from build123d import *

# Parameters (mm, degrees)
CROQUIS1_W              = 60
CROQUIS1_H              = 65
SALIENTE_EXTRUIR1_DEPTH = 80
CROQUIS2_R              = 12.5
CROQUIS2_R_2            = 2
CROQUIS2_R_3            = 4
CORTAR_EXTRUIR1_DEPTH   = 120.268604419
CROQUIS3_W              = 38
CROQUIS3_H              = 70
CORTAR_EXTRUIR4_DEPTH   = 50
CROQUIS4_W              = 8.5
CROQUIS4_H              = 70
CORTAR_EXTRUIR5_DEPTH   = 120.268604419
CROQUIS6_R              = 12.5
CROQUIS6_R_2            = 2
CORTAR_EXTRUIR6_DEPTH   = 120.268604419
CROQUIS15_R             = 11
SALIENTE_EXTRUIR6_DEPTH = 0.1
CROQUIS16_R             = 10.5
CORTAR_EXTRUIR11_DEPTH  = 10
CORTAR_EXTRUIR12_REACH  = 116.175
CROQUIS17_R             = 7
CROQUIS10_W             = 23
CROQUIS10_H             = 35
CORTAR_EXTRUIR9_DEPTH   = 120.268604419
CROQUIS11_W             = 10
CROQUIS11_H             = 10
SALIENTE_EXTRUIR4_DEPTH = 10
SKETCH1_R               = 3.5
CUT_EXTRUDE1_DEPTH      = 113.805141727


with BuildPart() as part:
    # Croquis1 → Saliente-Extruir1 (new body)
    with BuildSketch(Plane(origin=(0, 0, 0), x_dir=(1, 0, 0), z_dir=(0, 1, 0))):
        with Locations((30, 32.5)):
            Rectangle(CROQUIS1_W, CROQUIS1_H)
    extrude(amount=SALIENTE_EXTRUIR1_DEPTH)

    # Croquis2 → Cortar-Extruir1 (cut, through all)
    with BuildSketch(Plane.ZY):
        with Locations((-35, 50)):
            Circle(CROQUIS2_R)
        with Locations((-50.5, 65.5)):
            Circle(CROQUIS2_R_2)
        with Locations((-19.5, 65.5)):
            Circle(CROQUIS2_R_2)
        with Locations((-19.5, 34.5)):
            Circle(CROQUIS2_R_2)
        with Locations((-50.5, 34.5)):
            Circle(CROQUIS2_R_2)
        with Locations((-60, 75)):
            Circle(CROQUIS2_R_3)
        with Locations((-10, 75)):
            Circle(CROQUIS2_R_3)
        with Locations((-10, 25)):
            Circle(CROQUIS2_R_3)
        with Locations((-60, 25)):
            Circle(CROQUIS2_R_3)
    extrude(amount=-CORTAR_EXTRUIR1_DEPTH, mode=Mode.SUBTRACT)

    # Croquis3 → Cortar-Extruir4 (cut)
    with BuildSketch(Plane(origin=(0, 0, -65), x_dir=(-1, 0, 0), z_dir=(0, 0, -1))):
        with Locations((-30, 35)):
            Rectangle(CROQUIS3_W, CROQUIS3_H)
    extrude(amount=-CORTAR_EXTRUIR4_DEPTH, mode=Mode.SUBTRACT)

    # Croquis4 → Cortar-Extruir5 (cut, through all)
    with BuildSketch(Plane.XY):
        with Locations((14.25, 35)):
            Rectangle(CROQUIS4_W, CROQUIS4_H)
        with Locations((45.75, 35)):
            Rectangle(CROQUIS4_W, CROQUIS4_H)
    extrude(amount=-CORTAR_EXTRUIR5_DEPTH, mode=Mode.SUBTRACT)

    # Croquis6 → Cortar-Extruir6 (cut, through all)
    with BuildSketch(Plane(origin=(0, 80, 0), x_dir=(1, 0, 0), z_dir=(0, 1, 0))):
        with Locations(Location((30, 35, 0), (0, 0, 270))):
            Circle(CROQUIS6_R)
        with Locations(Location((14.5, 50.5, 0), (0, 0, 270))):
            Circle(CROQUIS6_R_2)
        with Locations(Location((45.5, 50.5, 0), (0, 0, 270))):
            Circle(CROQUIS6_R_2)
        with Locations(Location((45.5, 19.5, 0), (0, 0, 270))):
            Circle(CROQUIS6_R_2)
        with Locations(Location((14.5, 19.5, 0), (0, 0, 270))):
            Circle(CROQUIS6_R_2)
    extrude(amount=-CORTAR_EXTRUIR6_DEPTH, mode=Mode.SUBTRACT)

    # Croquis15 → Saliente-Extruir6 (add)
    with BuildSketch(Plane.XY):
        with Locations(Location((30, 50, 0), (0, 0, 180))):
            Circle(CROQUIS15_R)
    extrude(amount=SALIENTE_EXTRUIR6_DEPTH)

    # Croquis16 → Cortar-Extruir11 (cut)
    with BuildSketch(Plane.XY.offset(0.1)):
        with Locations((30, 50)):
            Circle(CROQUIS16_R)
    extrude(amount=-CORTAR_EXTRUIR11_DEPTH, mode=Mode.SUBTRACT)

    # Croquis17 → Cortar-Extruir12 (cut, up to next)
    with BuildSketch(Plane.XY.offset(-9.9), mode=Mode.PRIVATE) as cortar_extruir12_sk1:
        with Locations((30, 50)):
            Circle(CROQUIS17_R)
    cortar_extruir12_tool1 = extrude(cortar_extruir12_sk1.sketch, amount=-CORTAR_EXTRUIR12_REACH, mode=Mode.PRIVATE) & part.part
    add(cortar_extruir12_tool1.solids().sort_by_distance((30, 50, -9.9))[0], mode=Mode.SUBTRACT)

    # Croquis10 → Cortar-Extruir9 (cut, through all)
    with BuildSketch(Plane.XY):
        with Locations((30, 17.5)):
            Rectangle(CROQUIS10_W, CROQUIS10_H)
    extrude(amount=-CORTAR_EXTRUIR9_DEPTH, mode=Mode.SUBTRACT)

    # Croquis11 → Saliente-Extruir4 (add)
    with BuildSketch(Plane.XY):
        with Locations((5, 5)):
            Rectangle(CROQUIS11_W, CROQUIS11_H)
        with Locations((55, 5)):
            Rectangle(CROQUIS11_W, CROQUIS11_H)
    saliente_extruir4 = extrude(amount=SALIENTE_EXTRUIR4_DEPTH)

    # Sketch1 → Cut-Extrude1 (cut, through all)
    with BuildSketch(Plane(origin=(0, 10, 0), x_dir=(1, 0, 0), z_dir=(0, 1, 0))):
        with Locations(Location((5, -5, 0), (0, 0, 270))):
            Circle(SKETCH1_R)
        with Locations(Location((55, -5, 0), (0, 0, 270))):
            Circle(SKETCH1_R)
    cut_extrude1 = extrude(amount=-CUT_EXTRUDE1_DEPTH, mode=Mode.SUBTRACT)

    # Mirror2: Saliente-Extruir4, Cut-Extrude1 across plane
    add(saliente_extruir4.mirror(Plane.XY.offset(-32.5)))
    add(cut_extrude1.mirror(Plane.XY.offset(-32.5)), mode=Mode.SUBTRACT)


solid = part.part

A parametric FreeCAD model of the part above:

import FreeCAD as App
import Part
import Sketcher
from FreeCAD import Vector
Q = App.Units.Quantity


def add_polygon(sketch, points):
    """Adds a closed chain of lines whose ends are joined by coincident constraints."""
    first, n = sketch.GeometryCount, len(points)
    for a, b in zip(points, points[1:] + points[:1]):
        sketch.addGeometry(Part.LineSegment(App.Vector(*a, 0), App.Vector(*b, 0)), False)
    for i in range(n):
        sketch.addConstraint(Sketcher.Constraint("Coincident", first + i, 2, first + (i + 1) % n, 1))

doc = App.newDocument("Part")
body = doc.addObject("PartDesign::Body", "Body")

sketch1 = body.newObject("Sketcher::SketchObject", "Sketch")
sketch1.AttachmentSupport = (doc.getObject("XZ_Plane"), [""])
sketch1.MapMode = "FlatFace"
add_polygon(sketch1, [(0, -65), (0, 0), (60, 0), (60, -65)])
sketch1.addConstraint(Sketcher.Constraint("Vertical", 0))
sketch1.addConstraint(Sketcher.Constraint("Horizontal", 1))
sketch1.addConstraint(Sketcher.Constraint("Vertical", 2))
sketch1.addConstraint(Sketcher.Constraint("Horizontal", 3))
sketch1.addConstraint(Sketcher.Constraint("Coincident", 0, 2, -1, 1))
sketch1.addConstraint(Sketcher.Constraint("DistanceX", 1, 1, 1, 2, Q("60 mm")))
sketch1.addConstraint(Sketcher.Constraint("DistanceY", 0, 1, 0, 2, Q("65 mm")))
pad1 = body.newObject("PartDesign::Pad", "Pad")
pad1.Profile = sketch1
pad1.Length = 80
pad1.Reversed = True

sketch2 = body.newObject("Sketcher::SketchObject", "Sketch001")
sketch2.AttachmentSupport = (doc.getObject("YZ_Plane"), [""])
sketch2.MapMode = "FlatFace"
sketch2.addGeometry(Part.Circle(Vector(50, -35, 0), Vector(0, 0, 1), 12.5), False)
sketch2.addGeometry(Part.Circle(Vector(65.5, -50.5, 0), Vector(0, 0, 1), 2), False)
sketch2.addGeometry(Part.Circle(Vector(65.5, -19.5, 0), Vector(0, 0, 1), 2), False)
sketch2.addGeometry(Part.Circle(Vector(34.5, -19.5, 0), Vector(0, 0, 1), 2), False)
sketch2.addGeometry(Part.Circle(Vector(34.5, -50.5, 0), Vector(0, 0, 1), 2), False)
sketch2.addGeometry(Part.Circle(Vector(75, -60, 0), Vector(0, 0, 1), 4), False)
sketch2.addGeometry(Part.Circle(Vector(75, -10, 0), Vector(0, 0, 1), 4), False)
sketch2.addGeometry(Part.Circle(Vector(25, -10, 0), Vector(0, 0, 1), 4), False)
sketch2.addGeometry(Part.Circle(Vector(25, -60, 0), Vector(0, 0, 1), 4), False)
sketch2.addConstraint(Sketcher.Constraint("Equal", 1, 2))
sketch2.addConstraint(Sketcher.Constraint("Equal", 2, 3))
sketch2.addConstraint(Sketcher.Constraint("Equal", 3, 4))
sketch2.addConstraint(Sketcher.Constraint("Equal", 5, 6))
sketch2.addConstraint(Sketcher.Constraint("Equal", 6, 7))
sketch2.addConstraint(Sketcher.Constraint("Equal", 7, 8))
sketch2.addConstraint(Sketcher.Constraint("Horizontal", 2, 3, 3, 3))
sketch2.addConstraint(Sketcher.Constraint("Horizontal", 1, 3, 4, 3))
sketch2.addConstraint(Sketcher.Constraint("Horizontal", 6, 3, 7, 3))
sketch2.addConstraint(Sketcher.Constraint("Horizontal", 5, 3, 8, 3))
sketch2.addConstraint(Sketcher.Constraint("Vertical", 1, 3, 2, 3))
sketch2.addConstraint(Sketcher.Constraint("Vertical", 3, 3, 4, 3))
sketch2.addConstraint(Sketcher.Constraint("Vertical", 5, 3, 6, 3))
sketch2.addConstraint(Sketcher.Constraint("Vertical", 7, 3, 8, 3))
sketch2.addConstraint(Sketcher.Constraint("Diameter", 0, Q("25 mm")))
sketch2.addConstraint(Sketcher.Constraint("Diameter", 1, Q("4 mm")))
sketch2.addConstraint(Sketcher.Constraint("Diameter", 5, Q("8 mm")))
sketch2.addConstraint(Sketcher.Constraint("DistanceX", -1, 1, 0, 3, Q("50 mm")))
sketch2.addConstraint(Sketcher.Constraint("DistanceY", 0, 3, -1, 1, Q("35 mm")))
sketch2.addConstraint(Sketcher.Constraint("DistanceX", -1, 1, 5, 3, Q("75 mm")))
sketch2.addConstraint(Sketcher.Constraint("DistanceY", 5, 3, -1, 1, Q("60 mm")))
sketch2.addConstraint(Sketcher.Constraint("DistanceY", 6, 3, -1, 1, Q("10 mm")))
sketch2.addConstraint(Sketcher.Constraint("DistanceX", -1, 1, 7, 3, Q("25 mm")))
sketch2.addConstraint(Sketcher.Constraint("DistanceY", 1, 3, 2, 3, Q("31 mm")))
sketch2.addConstraint(Sketcher.Constraint("DistanceX", 3, 3, 2, 3, Q("31 mm")))
sketch2.addConstraint(Sketcher.Constraint("DistanceX", -1, 1, 1, 3, Q("65.5 mm")))
sketch2.addConstraint(Sketcher.Constraint("DistanceY", 1, 3, -1, 1, Q("50.5 mm")))
pocket1 = body.newObject("PartDesign::Pocket", "Pocket")
pocket1.Profile = sketch2
pocket1.Type = "ThroughAll"
pocket1.Reversed = True

sketch3 = body.newObject("Sketcher::SketchObject", "Sketch002")
sketch3.AttachmentSupport = (doc.getObject("XY_Plane"), [""])
sketch3.MapMode = "FlatFace"
sketch3.AttachmentOffset = App.Placement(Vector(0, 0, -65), App.Rotation())
add_polygon(sketch3, [(49, 70), (49, 0), (11, 0), (11, 70)])
sketch3.addConstraint(Sketcher.Constraint("Vertical", 0))
sketch3.addConstraint(Sketcher.Constraint("Horizontal", 1))
sketch3.addConstraint(Sketcher.Constraint("Vertical", 2))
sketch3.addConstraint(Sketcher.Constraint("Horizontal", 3))
sketch3.addConstraint(Sketcher.Constraint("PointOnObject", 0, 2, -1))
sketch3.addConstraint(Sketcher.Constraint("DistanceX", 1, 2, 1, 1, Q("38 mm")))
sketch3.addConstraint(Sketcher.Constraint("DistanceY", 0, 2, 0, 1, Q("70 mm")))
sketch3.addConstraint(Sketcher.Constraint("DistanceX", -1, 1, 0, 2, Q("49 mm")))
pocket2 = body.newObject("PartDesign::Pocket", "Pocket001")
pocket2.Profile = sketch3
pocket2.Length = 50
pocket2.Reversed = True

sketch4 = body.newObject("Sketcher::SketchObject", "Sketch003")
sketch4.AttachmentSupport = (doc.getObject("XY_Plane"), [""])
sketch4.MapMode = "FlatFace"
add_polygon(sketch4, [(10, 70), (10, 0), (18, 0), (18, 70)])
add_polygon(sketch4, [(42, 70), (42, 0), (50, 0), (50, 70)])
sketch4.addConstraint(Sketcher.Constraint("Vertical", 0))
sketch4.addConstraint(Sketcher.Constraint("Horizontal", 1))
sketch4.addConstraint(Sketcher.Constraint("Vertical", 2))
sketch4.addConstraint(Sketcher.Constraint("Horizontal", 3))
sketch4.addConstraint(Sketcher.Constraint("Vertical", 4))
sketch4.addConstraint(Sketcher.Constraint("Horizontal", 5))
sketch4.addConstraint(Sketcher.Constraint("Vertical", 6))
sketch4.addConstraint(Sketcher.Constraint("Horizontal", 7))
sketch4.addConstraint(Sketcher.Constraint("PointOnObject", 0, 2, -1))
sketch4.addConstraint(Sketcher.Constraint("PointOnObject", 4, 2, -1))
sketch4.addConstraint(Sketcher.Constraint("Horizontal", 3, 2, 6, 2))
sketch4.addConstraint(Sketcher.Constraint("Equal", 3, 5))
sketch4.addConstraint(Sketcher.Constraint("DistanceY", 0, 2, 0, 1, Q("70 mm")))
sketch4.addConstraint(Sketcher.Constraint("DistanceX", 1, 1, 1, 2, Q("8.5 mm")))
sketch4.addConstraint(Sketcher.Constraint("DistanceX", -1, 1, 0, 2, Q("10 mm")))
sketch4.addConstraint(Sketcher.Constraint("DistanceX", -1, 1, 5, 2, Q("50 mm")))
pocket3 = body.newObject("PartDesign::Pocket", "Pocket002")
pocket3.Profile = sketch4
pocket3.Type = "ThroughAll"

sketch5 = body.newObject("Sketcher::SketchObject", "Sketch004")
sketch5.AttachmentSupport = (doc.getObject("XZ_Plane"), [""])
sketch5.MapMode = "FlatFace"
sketch5.AttachmentOffset = App.Placement(Vector(0, 0, -80), App.Rotation())
sketch5.addGeometry(Part.Circle(Vector(30, -35, 0), Vector(0, 0, 1), 12.5), False)
sketch5.addGeometry(Part.Circle(Vector(14.5, -50.5, 0), Vector(0, 0, 1), 2), False)
sketch5.addGeometry(Part.Circle(Vector(45.5, -50.5, 0), Vector(0, 0, 1), 2), False)
sketch5.addGeometry(Part.Circle(Vector(45.5, -19.5, 0), Vector(0, 0, 1), 2), False)
sketch5.addGeometry(Part.Circle(Vector(14.5, -19.5, 0), Vector(0, 0, 1), 2), False)
sketch5.addConstraint(Sketcher.Constraint("Equal", 1, 2))
sketch5.addConstraint(Sketcher.Constraint("Equal", 2, 3))
sketch5.addConstraint(Sketcher.Constraint("Equal", 3, 4))
sketch5.addConstraint(Sketcher.Constraint("Horizontal", 1, 3, 2, 3))
sketch5.addConstraint(Sketcher.Constraint("Horizontal", 3, 3, 4, 3))
sketch5.addConstraint(Sketcher.Constraint("Vertical", 2, 3, 3, 3))
sketch5.addConstraint(Sketcher.Constraint("Vertical", 1, 3, 4, 3))
sketch5.addConstraint(Sketcher.Constraint("Diameter", 0, Q("25 mm")))
sketch5.addConstraint(Sketcher.Constraint("Diameter", 1, Q("4 mm")))
sketch5.addConstraint(Sketcher.Constraint("DistanceX", -1, 1, 0, 3, Q("30 mm")))
sketch5.addConstraint(Sketcher.Constraint("DistanceY", 0, 3, -1, 1, Q("35 mm")))
sketch5.addConstraint(Sketcher.Constraint("DistanceX", 1, 3, 2, 3, Q("31 mm")))
sketch5.addConstraint(Sketcher.Constraint("DistanceY", 2, 3, 3, 3, Q("31 mm")))
sketch5.addConstraint(Sketcher.Constraint("DistanceX", -1, 1, 1, 3, Q("14.5 mm")))
sketch5.addConstraint(Sketcher.Constraint("DistanceY", 1, 3, -1, 1, Q("50.5 mm")))
pocket4 = body.newObject("PartDesign::Pocket", "Pocket003")
pocket4.Profile = sketch5
pocket4.Type = "ThroughAll"
pocket4.Reversed = True

sketch6 = body.newObject("Sketcher::SketchObject", "Sketch005")
sketch6.AttachmentSupport = (doc.getObject("XY_Plane"), [""])
sketch6.MapMode = "FlatFace"
sketch6.addGeometry(Part.Circle(Vector(30, 50, 0), Vector(0, 0, 1), 11), False)
sketch6.addConstraint(Sketcher.Constraint("Diameter", 0, Q("22 mm")))
sketch6.addConstraint(Sketcher.Constraint("DistanceX", -1, 1, 0, 3, Q("30 mm")))
sketch6.addConstraint(Sketcher.Constraint("DistanceY", -1, 1, 0, 3, Q("50 mm")))
pad2 = body.newObject("PartDesign::Pad", "Pad001")
pad2.Profile = sketch6
pad2.Length = 0.1

sketch7 = body.newObject("Sketcher::SketchObject", "Sketch006")
sketch7.AttachmentSupport = (doc.getObject("XY_Plane"), [""])
sketch7.MapMode = "FlatFace"
sketch7.AttachmentOffset = App.Placement(Vector(0, 0, 0.1), App.Rotation())
sketch7.addGeometry(Part.Circle(Vector(30, 50, 0), Vector(0, 0, 1), 10), False)
sketch7.addConstraint(Sketcher.Constraint("Diameter", 0, Q("21 mm")))
sketch7.addConstraint(Sketcher.Constraint("DistanceX", -1, 1, 0, 3, Q("30 mm")))
sketch7.addConstraint(Sketcher.Constraint("DistanceY", -1, 1, 0, 3, Q("50 mm")))
pocket5 = body.newObject("PartDesign::Pocket", "Pocket004")
pocket5.Profile = sketch7
pocket5.Length = 10

sketch8 = body.newObject("Sketcher::SketchObject", "Sketch007")
sketch8.AttachmentSupport = (doc.getObject("XY_Plane"), [""])
sketch8.MapMode = "FlatFace"
sketch8.AttachmentOffset = App.Placement(Vector(0, 0, -9.9), App.Rotation())
sketch8.addGeometry(Part.Circle(Vector(30, 50, 0), Vector(0, 0, 1), 7), False)
sketch8.addConstraint(Sketcher.Constraint("Diameter", 0, Q("14 mm")))
sketch8.addConstraint(Sketcher.Constraint("DistanceX", -1, 1, 0, 3, Q("30 mm")))
sketch8.addConstraint(Sketcher.Constraint("DistanceY", -1, 1, 0, 3, Q("50 mm")))
pocket6 = body.newObject("PartDesign::Pocket", "Pocket005")
pocket6.Profile = sketch8
pocket6.Type = "UpToFirst"

sketch9 = body.newObject("Sketcher::SketchObject", "Sketch008")
sketch9.AttachmentSupport = (doc.getObject("XY_Plane"), [""])
sketch9.MapMode = "FlatFace"
add_polygon(sketch9, [(18, 35), (18, 0), (42, 0), (42, 35)])
sketch9.addConstraint(Sketcher.Constraint("Vertical", 0))
sketch9.addConstraint(Sketcher.Constraint("Horizontal", 1))
sketch9.addConstraint(Sketcher.Constraint("Vertical", 2))
sketch9.addConstraint(Sketcher.Constraint("Horizontal", 3))
sketch9.addConstraint(Sketcher.Constraint("PointOnObject", 0, 2, -1))
sketch9.addConstraint(Sketcher.Constraint("DistanceX", 1, 1, 1, 2, Q("23 mm")))
sketch9.addConstraint(Sketcher.Constraint("DistanceY", 0, 2, 0, 1, Q("35 mm")))
sketch9.addConstraint(Sketcher.Constraint("DistanceX", -1, 1, 0, 2, Q("18.5 mm")))
pocket7 = body.newObject("PartDesign::Pocket", "Pocket006")
pocket7.Profile = sketch9
pocket7.Type = "ThroughAll"

sketch10 = body.newObject("Sketcher::SketchObject", "Sketch009")
sketch10.AttachmentSupport = (doc.getObject("XY_Plane"), [""])
sketch10.MapMode = "FlatFace"
add_polygon(sketch10, [(0, 10), (0, 0), (10, 0), (10, 10)])
add_polygon(sketch10, [(50, 10), (50, 0), (60, 0), (60, 10)])
sketch10.addConstraint(Sketcher.Constraint("Vertical", 0))
sketch10.addConstraint(Sketcher.Constraint("Horizontal", 1))
sketch10.addConstraint(Sketcher.Constraint("Vertical", 2))
sketch10.addConstraint(Sketcher.Constraint("Horizontal", 3))
sketch10.addConstraint(Sketcher.Constraint("Vertical", 4))
sketch10.addConstraint(Sketcher.Constraint("Horizontal", 5))
sketch10.addConstraint(Sketcher.Constraint("Vertical", 6))
sketch10.addConstraint(Sketcher.Constraint("Horizontal", 7))
sketch10.addConstraint(Sketcher.Constraint("Coincident", 0, 2, -1, 1))
sketch10.addConstraint(Sketcher.Constraint("PointOnObject", 4, 2, -1))
sketch10.addConstraint(Sketcher.Constraint("Horizontal", 3, 2, 6, 2))
sketch10.addConstraint(Sketcher.Constraint("Equal", 3, 5))
sketch10.addConstraint(Sketcher.Constraint("Equal", 7, 0))
sketch10.addConstraint(Sketcher.Constraint("DistanceX", 1, 1, 1, 2, Q("10 mm")))
sketch10.addConstraint(Sketcher.Constraint("DistanceX", -1, 1, 4, 2, Q("50 mm")))
pad3 = body.newObject("PartDesign::Pad", "Pad002")
pad3.Profile = sketch10
pad3.Length = 10

sketch11 = body.newObject("Sketcher::SketchObject", "Sketch010")
sketch11.AttachmentSupport = (doc.getObject("XZ_Plane"), [""])
sketch11.MapMode = "FlatFace"
sketch11.AttachmentOffset = App.Placement(Vector(0, 0, -10), App.Rotation())
sketch11.addGeometry(Part.Circle(Vector(5, 5, 0), Vector(0, 0, 1), 3.5), False)
sketch11.addGeometry(Part.Circle(Vector(55, 5, 0), Vector(0, 0, 1), 3.5), False)
sketch11.addConstraint(Sketcher.Constraint("Equal", 0, 1))
sketch11.addConstraint(Sketcher.Constraint("Horizontal", 0, 3, 1, 3))
sketch11.addConstraint(Sketcher.Constraint("Diameter", 0, Q("7 mm")))
sketch11.addConstraint(Sketcher.Constraint("DistanceX", -1, 1, 0, 3, Q("5 mm")))
sketch11.addConstraint(Sketcher.Constraint("DistanceY", -1, 1, 0, 3, Q("5 mm")))
sketch11.addConstraint(Sketcher.Constraint("DistanceX", -1, 1, 1, 3, Q("55 mm")))
pocket8 = body.newObject("PartDesign::Pocket", "Pocket007")
pocket8.Profile = sketch11
pocket8.Type = "ThroughAll"
pocket8.Reversed = True
doc.recompute()

datumplane = body.newObject("PartDesign::Plane", "DatumPlane")
datumplane.AttachmentSupport = (doc.getObject("XY_Plane"), [""])
datumplane.MapMode = "FlatFace"
datumplane.AttachmentOffset = App.Placement(Vector(0, 0, -32.5), App.Rotation())
mirrored = body.newObject("PartDesign::Mirrored", "Mirrored")
mirrored.Originals = [pad3, pocket8]
mirrored.MirrorPlane = (datumplane, [""])
body.Tip = mirrored

doc.recompute()
